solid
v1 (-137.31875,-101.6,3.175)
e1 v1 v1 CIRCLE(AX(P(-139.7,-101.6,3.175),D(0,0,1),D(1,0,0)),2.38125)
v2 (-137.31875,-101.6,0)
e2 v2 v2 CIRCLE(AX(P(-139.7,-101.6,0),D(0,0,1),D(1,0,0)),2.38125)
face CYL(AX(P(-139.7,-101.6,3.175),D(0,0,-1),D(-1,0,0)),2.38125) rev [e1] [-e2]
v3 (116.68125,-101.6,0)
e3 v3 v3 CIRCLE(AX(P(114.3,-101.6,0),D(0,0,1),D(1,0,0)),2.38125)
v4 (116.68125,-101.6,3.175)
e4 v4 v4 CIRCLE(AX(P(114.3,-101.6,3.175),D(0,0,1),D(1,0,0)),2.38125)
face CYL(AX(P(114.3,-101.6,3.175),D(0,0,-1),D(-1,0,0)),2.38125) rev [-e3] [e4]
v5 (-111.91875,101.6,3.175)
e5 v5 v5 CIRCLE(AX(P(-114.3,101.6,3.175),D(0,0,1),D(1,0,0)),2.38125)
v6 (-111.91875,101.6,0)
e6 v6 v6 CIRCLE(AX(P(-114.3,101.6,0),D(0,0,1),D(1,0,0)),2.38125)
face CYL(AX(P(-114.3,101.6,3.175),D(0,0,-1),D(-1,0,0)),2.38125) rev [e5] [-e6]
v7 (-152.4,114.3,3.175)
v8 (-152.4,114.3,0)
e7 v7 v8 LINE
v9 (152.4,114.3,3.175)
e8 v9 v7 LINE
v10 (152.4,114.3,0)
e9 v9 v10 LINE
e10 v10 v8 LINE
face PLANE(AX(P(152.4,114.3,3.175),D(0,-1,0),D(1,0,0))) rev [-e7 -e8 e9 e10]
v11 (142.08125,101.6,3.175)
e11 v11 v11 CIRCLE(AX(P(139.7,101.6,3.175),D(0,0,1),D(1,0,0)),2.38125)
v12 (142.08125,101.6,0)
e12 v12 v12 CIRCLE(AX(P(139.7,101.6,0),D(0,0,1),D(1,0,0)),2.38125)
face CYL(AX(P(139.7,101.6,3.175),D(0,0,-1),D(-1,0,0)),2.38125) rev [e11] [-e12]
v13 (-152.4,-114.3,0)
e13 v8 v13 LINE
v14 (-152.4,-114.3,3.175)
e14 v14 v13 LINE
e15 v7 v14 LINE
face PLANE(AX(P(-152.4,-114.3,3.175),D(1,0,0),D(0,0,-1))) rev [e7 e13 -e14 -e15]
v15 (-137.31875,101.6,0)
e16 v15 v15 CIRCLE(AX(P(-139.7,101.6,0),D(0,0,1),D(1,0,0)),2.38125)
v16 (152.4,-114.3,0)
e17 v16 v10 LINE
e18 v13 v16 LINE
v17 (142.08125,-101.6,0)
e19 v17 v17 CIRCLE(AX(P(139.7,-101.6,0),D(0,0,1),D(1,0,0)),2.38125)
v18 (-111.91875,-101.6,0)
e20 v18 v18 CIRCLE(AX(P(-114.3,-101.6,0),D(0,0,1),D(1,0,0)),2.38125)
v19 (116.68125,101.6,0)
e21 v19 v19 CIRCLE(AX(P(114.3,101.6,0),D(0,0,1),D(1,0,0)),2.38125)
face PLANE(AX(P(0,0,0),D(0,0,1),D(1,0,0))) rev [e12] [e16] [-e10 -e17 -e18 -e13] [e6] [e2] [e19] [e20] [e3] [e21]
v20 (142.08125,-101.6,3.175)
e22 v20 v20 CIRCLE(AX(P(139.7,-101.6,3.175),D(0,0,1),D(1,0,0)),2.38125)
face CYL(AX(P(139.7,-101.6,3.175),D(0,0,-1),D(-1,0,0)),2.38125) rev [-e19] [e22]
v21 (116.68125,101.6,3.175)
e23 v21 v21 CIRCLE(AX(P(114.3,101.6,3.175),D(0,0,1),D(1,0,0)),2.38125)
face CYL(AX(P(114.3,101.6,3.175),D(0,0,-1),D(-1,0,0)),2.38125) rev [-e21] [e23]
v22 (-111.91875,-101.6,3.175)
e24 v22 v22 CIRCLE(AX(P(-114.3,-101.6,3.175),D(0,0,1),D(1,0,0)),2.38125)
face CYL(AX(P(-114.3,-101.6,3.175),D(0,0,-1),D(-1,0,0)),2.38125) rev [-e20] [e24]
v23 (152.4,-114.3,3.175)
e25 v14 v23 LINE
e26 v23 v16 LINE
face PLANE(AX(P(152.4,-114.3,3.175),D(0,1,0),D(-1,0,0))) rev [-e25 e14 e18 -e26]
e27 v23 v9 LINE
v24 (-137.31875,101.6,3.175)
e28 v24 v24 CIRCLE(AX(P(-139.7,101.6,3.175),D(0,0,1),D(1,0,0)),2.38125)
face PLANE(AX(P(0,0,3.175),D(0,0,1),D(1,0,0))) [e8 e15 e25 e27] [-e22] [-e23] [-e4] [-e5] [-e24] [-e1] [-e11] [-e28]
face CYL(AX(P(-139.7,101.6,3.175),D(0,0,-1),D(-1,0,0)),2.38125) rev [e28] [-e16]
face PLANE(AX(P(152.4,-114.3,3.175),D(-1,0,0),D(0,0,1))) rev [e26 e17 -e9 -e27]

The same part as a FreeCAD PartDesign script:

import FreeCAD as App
import Part
import Sketcher

V = App.Vector
Q = App.Units.Quantity


def add_polygon(sketch, points):
    """Adds a closed chain of lines whose ends are joined by coincident constraints."""
    first, n = sketch.GeometryCount, len(points)
    for a, b in zip(points, points[1:] + points[:1]):
        sketch.addGeometry(Part.LineSegment(App.Vector(*a, 0), App.Vector(*b, 0)), False)
    for i in range(n):
        sketch.addConstraint(Sketcher.Constraint("Coincident", first + i, 2, first + (i + 1) % n, 1))

doc = App.newDocument("Part")
body = doc.addObject("PartDesign::Body", "Body")

sketch1 = body.newObject("Sketcher::SketchObject", "Sketch")
sketch1.AttachmentSupport = (doc.getObject("XY_Plane"), [""])
sketch1.MapMode = "FlatFace"
add_polygon(sketch1, [(-152.4, 114.3), (-152.4, -114.3), (152.4, -114.3), (152.4, 114.3)])
sketch1.addGeometry(Part.Circle(V(-139.7, -101.6, 0), V(0, 0, 1), 2.4), False)
sketch1.addGeometry(Part.Circle(V(-114.3, -101.6, 0), V(0, 0, 1), 2.4), False)
sketch1.addGeometry(Part.Circle(V(114.3, -101.6, 0), V(0, 0, 1), 2.4), False)
sketch1.addGeometry(Part.Circle(V(139.7, -101.6, 0), V(0, 0, 1), 2.4), False)
sketch1.addGeometry(Part.Circle(V(-139.7, 101.6, 0), V(0, 0, 1), 2.4), False)
sketch1.addGeometry(Part.Circle(V(-114.3, 101.6, 0), V(0, 0, 1), 2.4), False)
sketch1.addGeometry(Part.Circle(V(114.3, 101.6, 0), V(0, 0, 1), 2.4), False)
sketch1.addGeometry(Part.Circle(V(139.7, 101.6, 0), V(0, 0, 1), 2.4), False)
sketch1.addConstraint(Sketcher.Constraint("Vertical", 0))
sketch1.addConstraint(Sketcher.Constraint("Horizontal", 1))
sketch1.addConstraint(Sketcher.Constraint("Vertical", 2))
sketch1.addConstraint(Sketcher.Constraint("Horizontal", 3))
sketch1.addConstraint(Sketcher.Constraint("Equal", 4, 5))
sketch1.addConstraint(Sketcher.Constraint("Equal", 5, 6))
sketch1.addConstraint(Sketcher.Constraint("Equal", 6, 7))
sketch1.addConstraint(Sketcher.Constraint("Equal", 7, 8))
sketch1.addConstraint(Sketcher.Constraint("Equal", 8, 9))
sketch1.addConstraint(Sketcher.Constraint("Equal", 9, 10))
sketch1.addConstraint(Sketcher.Constraint("Equal", 10, 11))
sketch1.addConstraint(Sketcher.Constraint("Symmetric", 7, 3, 8, 3, -1, 1))
sketch1.addConstraint(Sketcher.Constraint("Symmetric", 6, 3, 9, 3, -1, 1))
sketch1.addConstraint(Sketcher.Constraint("Symmetric", 5, 3, 10, 3, -1, 1))
sketch1.addConstraint(Sketcher.Constraint("Symmetric", 4, 3, 11, 3, -1, 1))
sketch1.addConstraint(Sketcher.Constraint("Symmetric", 0, 2, 2, 2, -1, 1))
sketch1.addConstraint(Sketcher.Constraint("Symmetric", 5, 3, 6, 3, -2))
sketch1.addConstraint(Sketcher.Constraint("Symmetric", 4, 3, 7, 3, -2))
sketch1.addConstraint(Sketcher.Constraint("Horizontal", 4, 3, 5, 3))
sketch1.addConstraint(Sketcher.Constraint("DistanceX", 1, 1, 1, 2, Q("12 in")))
sketch1.addConstraint(Sketcher.Constraint("DistanceY", 0, 2, 0, 1, Q("9 in")))
sketch1.addConstraint(Sketcher.Constraint("Diameter", 4, Q("0.1875 in")))
sketch1.addConstraint(Sketcher.Constraint("DistanceY", 4, 3, -1, 1, Q("4 in")))
sketch1.addConstraint(Sketcher.Constraint("DistanceX", 4, 3, 5, 3, Q("1 in")))
sketch1.addConstraint(Sketcher.Constraint("DistanceX", 5, 3, 6, 3, Q("9 in")))
pad1 = body.newObject("PartDesign::Pad", "Pad")
pad1.Profile = sketch1
pad1.Length = Q("0.125 in")

doc.recompute()
